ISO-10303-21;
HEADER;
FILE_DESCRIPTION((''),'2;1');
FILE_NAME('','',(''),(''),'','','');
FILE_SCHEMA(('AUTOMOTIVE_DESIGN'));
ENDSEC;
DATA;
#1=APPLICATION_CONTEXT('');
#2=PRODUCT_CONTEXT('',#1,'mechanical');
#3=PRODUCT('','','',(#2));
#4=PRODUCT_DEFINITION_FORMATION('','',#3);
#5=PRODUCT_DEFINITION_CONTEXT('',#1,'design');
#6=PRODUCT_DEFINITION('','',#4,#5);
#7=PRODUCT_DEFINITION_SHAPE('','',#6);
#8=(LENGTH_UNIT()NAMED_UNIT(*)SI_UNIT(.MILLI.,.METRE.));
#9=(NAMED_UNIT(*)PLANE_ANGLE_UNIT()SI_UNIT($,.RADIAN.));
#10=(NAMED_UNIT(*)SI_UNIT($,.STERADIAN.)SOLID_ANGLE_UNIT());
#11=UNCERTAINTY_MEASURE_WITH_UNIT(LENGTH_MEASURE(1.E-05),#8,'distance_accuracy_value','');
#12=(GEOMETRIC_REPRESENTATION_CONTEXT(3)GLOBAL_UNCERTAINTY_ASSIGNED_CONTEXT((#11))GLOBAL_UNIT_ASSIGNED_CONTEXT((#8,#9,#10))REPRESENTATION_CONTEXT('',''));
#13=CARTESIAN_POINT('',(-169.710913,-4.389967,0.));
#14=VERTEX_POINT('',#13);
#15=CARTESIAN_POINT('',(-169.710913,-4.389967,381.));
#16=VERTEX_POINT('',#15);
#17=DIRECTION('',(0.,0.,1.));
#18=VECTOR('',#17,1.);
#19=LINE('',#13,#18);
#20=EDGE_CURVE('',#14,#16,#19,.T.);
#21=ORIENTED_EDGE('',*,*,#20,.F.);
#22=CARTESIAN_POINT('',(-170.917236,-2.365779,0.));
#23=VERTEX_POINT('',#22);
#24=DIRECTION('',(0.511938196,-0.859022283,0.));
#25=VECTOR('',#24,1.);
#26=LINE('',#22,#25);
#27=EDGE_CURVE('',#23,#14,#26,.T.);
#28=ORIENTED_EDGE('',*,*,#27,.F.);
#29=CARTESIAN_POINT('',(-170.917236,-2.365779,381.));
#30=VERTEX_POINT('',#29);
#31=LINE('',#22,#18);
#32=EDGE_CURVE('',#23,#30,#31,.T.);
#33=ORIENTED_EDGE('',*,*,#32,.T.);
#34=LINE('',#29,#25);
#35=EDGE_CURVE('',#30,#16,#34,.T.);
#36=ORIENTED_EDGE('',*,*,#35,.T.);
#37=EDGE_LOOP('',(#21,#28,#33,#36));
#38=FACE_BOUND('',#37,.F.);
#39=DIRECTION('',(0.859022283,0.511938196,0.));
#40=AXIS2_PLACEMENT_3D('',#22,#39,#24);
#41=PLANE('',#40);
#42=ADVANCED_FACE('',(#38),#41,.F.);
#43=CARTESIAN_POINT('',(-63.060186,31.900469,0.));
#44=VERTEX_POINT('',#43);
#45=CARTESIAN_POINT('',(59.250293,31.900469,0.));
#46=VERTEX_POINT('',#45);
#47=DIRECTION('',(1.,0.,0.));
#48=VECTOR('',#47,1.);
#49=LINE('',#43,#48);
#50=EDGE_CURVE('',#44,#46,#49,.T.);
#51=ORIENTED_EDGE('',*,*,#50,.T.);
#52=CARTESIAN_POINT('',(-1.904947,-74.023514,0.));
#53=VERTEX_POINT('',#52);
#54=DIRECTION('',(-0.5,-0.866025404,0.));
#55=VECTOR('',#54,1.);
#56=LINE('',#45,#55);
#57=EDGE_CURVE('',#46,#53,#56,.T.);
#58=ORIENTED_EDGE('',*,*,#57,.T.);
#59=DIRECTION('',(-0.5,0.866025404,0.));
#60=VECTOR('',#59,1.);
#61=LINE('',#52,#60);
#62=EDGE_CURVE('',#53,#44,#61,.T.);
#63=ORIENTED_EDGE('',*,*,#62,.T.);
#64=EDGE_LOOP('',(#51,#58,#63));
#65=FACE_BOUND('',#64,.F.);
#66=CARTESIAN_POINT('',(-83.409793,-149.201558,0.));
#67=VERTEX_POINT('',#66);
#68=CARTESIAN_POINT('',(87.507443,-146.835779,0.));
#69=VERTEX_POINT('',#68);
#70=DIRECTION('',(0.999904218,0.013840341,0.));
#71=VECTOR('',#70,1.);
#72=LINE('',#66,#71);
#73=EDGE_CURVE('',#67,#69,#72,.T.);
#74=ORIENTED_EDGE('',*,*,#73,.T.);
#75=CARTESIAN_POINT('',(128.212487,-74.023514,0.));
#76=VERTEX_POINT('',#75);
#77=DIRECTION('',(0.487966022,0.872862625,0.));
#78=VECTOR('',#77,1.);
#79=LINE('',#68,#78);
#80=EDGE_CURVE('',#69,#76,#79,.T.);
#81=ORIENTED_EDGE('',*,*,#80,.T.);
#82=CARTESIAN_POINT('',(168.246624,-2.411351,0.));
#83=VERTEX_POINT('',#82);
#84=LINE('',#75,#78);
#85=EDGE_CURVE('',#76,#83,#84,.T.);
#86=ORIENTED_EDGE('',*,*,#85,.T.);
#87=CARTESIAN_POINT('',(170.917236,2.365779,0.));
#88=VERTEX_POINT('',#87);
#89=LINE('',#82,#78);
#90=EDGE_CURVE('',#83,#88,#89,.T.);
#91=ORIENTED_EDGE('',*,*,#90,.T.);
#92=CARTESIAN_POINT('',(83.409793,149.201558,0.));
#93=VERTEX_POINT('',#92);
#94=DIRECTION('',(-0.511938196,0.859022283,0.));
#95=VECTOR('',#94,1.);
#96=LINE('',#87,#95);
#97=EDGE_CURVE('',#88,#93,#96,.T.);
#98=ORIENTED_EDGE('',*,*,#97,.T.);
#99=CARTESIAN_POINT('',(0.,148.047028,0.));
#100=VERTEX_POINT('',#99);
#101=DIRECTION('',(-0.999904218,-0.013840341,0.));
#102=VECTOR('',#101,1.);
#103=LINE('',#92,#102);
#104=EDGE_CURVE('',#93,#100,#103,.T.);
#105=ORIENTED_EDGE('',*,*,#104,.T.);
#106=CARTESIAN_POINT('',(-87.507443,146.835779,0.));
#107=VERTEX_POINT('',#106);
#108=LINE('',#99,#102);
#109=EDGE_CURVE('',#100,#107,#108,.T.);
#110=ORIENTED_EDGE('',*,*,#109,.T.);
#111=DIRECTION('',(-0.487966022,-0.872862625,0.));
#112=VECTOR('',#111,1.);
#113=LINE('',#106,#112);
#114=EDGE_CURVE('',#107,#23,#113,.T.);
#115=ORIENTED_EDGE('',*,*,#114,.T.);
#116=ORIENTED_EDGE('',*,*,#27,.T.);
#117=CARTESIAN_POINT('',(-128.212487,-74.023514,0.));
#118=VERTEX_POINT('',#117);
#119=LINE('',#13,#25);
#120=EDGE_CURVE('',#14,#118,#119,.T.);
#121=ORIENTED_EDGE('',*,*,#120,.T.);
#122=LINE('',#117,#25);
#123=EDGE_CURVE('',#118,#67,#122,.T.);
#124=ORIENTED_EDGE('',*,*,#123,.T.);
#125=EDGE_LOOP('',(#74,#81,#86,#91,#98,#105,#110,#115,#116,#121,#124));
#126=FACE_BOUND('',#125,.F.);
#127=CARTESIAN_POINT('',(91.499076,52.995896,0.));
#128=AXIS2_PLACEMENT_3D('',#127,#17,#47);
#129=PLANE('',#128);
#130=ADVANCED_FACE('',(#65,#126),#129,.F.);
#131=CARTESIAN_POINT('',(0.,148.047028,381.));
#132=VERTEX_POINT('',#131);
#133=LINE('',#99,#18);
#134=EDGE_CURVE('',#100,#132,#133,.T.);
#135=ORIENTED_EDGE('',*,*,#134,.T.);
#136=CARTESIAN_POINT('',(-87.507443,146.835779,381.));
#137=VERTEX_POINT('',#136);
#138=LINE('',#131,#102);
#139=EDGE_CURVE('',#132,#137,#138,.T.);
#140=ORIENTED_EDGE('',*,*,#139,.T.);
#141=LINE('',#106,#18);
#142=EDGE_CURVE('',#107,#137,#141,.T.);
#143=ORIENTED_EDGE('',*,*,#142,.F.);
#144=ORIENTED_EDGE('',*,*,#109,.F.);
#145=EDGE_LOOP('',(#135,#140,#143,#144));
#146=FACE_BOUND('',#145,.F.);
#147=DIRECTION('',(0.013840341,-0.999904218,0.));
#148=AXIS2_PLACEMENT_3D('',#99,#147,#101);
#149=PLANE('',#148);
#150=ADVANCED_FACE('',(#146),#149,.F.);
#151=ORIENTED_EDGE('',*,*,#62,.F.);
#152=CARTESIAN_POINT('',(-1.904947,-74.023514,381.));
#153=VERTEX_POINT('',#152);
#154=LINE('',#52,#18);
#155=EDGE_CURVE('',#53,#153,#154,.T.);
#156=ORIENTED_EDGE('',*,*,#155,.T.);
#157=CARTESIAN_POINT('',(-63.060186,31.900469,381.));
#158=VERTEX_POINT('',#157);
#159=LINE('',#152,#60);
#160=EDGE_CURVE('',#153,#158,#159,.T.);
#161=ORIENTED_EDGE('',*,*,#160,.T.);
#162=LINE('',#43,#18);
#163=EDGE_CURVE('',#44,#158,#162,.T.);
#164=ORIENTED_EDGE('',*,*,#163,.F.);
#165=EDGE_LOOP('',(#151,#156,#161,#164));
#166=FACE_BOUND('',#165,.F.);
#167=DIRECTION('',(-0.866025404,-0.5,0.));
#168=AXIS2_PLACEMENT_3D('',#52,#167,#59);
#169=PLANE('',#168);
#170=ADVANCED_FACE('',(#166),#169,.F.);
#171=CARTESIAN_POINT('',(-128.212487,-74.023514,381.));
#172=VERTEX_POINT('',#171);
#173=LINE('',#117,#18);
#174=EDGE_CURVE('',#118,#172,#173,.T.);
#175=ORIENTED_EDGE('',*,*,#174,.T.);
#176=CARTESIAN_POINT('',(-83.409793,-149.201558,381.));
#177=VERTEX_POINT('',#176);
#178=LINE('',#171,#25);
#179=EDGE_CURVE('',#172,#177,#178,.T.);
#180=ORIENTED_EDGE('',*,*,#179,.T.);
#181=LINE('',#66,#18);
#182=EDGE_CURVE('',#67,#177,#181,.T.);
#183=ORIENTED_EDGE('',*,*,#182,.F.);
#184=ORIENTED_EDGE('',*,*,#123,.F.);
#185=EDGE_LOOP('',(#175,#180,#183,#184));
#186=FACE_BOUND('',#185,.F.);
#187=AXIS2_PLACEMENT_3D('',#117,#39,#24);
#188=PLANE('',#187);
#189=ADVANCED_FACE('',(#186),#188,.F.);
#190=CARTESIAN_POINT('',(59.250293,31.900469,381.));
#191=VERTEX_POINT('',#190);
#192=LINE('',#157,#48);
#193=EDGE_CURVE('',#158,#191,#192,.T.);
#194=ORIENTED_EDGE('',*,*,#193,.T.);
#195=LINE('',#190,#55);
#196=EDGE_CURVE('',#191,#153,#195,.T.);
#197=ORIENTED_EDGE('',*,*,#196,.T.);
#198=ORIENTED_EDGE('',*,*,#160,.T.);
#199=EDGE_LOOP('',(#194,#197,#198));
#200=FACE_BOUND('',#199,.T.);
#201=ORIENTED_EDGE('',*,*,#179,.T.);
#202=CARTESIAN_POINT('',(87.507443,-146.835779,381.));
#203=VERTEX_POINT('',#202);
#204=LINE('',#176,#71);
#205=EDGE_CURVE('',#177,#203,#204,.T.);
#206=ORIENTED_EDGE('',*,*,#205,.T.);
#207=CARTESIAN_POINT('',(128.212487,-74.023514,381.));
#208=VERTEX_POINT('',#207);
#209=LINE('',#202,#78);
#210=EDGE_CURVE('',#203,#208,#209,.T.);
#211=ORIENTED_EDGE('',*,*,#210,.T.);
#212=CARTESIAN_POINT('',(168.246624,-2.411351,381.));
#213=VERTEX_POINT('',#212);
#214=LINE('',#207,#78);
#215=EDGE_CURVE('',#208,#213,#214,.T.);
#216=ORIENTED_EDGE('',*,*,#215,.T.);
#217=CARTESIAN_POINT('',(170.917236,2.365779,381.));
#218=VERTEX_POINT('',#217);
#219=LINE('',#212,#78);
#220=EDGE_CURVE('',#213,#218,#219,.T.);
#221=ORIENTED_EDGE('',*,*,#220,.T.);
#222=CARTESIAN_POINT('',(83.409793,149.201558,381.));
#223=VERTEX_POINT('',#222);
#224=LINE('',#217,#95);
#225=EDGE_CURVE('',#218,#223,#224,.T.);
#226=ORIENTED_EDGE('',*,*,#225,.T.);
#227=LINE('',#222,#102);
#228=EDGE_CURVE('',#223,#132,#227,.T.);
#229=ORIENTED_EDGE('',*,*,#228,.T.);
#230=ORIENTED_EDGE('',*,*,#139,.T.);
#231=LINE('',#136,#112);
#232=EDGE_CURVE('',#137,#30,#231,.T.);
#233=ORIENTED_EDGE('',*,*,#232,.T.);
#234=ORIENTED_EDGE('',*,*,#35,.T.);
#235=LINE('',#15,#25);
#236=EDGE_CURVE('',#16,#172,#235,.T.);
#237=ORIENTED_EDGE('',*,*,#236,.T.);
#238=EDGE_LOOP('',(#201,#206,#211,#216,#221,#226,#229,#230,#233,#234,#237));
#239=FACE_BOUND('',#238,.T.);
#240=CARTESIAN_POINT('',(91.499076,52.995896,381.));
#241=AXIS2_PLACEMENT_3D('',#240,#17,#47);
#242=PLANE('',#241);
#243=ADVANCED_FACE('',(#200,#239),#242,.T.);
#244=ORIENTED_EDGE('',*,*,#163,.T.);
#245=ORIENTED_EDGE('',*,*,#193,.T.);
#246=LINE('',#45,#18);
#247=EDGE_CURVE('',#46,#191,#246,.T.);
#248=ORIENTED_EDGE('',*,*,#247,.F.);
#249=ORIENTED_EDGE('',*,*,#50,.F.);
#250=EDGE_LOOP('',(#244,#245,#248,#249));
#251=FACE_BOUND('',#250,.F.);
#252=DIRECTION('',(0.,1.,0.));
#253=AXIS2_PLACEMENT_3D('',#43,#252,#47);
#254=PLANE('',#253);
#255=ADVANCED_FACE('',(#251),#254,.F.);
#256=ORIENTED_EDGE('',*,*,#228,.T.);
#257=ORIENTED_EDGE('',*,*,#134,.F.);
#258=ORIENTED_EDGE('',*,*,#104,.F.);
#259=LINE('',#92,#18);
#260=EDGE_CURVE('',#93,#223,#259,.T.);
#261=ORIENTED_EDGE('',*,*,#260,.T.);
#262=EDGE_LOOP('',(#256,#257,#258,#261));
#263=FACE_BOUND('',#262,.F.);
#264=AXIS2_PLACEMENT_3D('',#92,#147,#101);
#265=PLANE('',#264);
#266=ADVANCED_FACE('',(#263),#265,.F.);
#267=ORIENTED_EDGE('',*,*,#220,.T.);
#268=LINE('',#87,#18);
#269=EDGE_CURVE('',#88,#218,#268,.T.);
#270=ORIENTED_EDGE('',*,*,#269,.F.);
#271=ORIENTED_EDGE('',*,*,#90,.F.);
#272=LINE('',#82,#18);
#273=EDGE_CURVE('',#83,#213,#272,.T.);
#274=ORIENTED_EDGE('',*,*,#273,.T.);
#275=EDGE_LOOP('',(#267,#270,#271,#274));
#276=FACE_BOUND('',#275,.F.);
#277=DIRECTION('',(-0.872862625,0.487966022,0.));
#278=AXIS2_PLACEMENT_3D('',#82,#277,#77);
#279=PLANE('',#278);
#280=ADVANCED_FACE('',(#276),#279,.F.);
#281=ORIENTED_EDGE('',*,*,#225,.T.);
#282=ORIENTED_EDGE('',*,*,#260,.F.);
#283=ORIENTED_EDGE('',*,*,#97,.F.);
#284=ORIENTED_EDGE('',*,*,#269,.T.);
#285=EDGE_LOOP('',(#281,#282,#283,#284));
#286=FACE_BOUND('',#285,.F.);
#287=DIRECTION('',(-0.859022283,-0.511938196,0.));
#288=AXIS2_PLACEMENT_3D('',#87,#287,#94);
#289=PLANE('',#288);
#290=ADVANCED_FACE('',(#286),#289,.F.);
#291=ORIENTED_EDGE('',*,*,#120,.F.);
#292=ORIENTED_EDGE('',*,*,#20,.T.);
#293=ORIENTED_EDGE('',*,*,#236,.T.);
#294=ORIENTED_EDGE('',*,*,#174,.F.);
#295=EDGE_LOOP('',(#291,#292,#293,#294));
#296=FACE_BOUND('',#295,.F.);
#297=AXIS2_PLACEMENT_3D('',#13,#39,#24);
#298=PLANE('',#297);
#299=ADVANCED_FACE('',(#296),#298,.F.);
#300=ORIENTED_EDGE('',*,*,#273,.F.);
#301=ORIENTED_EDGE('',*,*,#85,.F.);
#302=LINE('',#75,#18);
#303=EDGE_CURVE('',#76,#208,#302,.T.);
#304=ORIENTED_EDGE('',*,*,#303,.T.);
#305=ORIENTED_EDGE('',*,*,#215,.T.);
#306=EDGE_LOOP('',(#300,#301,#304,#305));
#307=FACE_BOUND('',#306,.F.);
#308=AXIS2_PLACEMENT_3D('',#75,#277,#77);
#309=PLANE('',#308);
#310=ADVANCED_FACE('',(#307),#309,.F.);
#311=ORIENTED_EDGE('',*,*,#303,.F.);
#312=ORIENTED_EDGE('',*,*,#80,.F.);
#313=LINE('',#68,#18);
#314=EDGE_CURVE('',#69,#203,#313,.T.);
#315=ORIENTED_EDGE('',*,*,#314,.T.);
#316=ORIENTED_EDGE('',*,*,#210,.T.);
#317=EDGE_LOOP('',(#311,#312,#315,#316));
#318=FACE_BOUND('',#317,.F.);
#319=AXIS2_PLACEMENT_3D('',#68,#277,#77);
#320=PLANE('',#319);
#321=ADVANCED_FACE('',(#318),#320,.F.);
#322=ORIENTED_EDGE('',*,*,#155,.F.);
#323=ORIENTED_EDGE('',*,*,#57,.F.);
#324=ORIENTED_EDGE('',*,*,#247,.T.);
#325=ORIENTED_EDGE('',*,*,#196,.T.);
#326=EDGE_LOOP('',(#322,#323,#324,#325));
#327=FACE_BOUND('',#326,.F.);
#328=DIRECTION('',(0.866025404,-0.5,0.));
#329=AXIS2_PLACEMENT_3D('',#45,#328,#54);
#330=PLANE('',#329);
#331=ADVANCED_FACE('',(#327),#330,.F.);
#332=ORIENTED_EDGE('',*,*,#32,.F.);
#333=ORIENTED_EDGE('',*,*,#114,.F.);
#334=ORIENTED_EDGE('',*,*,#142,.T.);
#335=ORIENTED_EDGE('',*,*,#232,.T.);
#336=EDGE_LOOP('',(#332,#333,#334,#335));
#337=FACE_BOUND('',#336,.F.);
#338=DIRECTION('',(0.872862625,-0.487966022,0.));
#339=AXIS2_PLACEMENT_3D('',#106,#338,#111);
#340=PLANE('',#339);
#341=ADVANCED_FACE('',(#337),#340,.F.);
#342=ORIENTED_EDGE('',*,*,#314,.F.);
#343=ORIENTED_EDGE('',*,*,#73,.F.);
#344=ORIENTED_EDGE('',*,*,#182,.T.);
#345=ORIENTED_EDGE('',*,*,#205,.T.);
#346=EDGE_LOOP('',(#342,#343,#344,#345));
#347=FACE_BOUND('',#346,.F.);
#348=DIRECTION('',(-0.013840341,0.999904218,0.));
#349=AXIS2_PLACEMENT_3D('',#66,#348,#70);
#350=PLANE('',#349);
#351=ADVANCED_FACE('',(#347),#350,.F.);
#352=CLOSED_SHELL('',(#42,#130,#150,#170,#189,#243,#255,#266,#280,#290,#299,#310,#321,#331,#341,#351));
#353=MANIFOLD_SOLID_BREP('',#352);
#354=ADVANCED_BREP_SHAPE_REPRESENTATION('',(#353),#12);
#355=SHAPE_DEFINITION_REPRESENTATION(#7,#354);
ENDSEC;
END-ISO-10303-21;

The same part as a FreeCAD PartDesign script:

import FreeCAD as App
import Part
import Sketcher
Q = App.Units.Quantity

doc = App.newDocument("Part")
params = doc.addObject("Spreadsheet::Sheet", "Params")
for row, (alias, value) in enumerate([
    ("pad1_length", "15 in"),
], start=1):
    params.set(f"A{row}", alias)
    params.set(f"B{row}", "=" + value)
    params.setAlias(f"B{row}", alias)

body = doc.addObject("PartDesign::Body", "Body")

# Sketch on XY plane
sketch1 = doc.addObject("Sketcher::SketchObject", "Sketch")
body.addObject(sketch1)
sketch1.AttachmentSupport = (doc.XY_Plane, [""])
sketch1.MapMode = "FlatFace"
sketch1.addGeometry([
    Part.LineSegment(App.Vector(170.9, 2.4, 0), App.Vector(83.4, 149.2, 0)),  # 0
    Part.LineSegment(App.Vector(83.4, 149.2, 0), App.Vector(0, 148, 0)),  # 1
    Part.LineSegment(App.Vector(0, 148, 0), App.Vector(-87.5, 146.8, 0)),  # 2
    Part.LineSegment(App.Vector(-87.5, 146.8, 0), App.Vector(-170.9, -2.4, 0)),  # 3
    Part.LineSegment(App.Vector(-170.9, -2.4, 0), App.Vector(-169.7, -4.4, 0)),  # 4
    Part.LineSegment(App.Vector(-169.7, -4.4, 0), App.Vector(-128.2, -74, 0)),  # 5
    Part.LineSegment(App.Vector(-128.2, -74, 0), App.Vector(-83.4, -149.2, 0)),  # 6
    Part.LineSegment(App.Vector(-83.4, -149.2, 0), App.Vector(87.5, -146.8, 0)),  # 7
    Part.LineSegment(App.Vector(87.5, -146.8, 0), App.Vector(128.2, -74, 0)),  # 8
    Part.LineSegment(App.Vector(128.2, -74, 0), App.Vector(168.2, -2.4, 0)),  # 9
    Part.LineSegment(App.Vector(168.2, -2.4, 0), App.Vector(170.9, 2.4, 0)),  # 10
    Part.LineSegment(App.Vector(-63.1, 31.9, 0), App.Vector(59.3, 31.9, 0)),  # 11
    Part.LineSegment(App.Vector(59.3, 31.9, 0), App.Vector(-1.9, -74, 0)),  # 12
    Part.LineSegment(App.Vector(-1.9, -74, 0), App.Vector(-63.1, 31.9, 0)),  # 13
], False)
sketch1.addConstraint([
    Sketcher.Constraint("Coincident", 0, 2, 1, 1),
    Sketcher.Constraint("Coincident", 1, 2, 2, 1),
    Sketcher.Constraint("Coincident", 2, 2, 3, 1),
    Sketcher.Constraint("Coincident", 3, 2, 4, 1),
    Sketcher.Constraint("Coincident", 4, 2, 5, 1),
    Sketcher.Constraint("Coincident", 5, 2, 6, 1),
    Sketcher.Constraint("Coincident", 6, 2, 7, 1),
    Sketcher.Constraint("Coincident", 7, 2, 8, 1),
    Sketcher.Constraint("Coincident", 8, 2, 9, 1),
    Sketcher.Constraint("Coincident", 9, 2, 10, 1),
    Sketcher.Constraint("Coincident", 10, 2, 0, 1),
    Sketcher.Constraint("Coincident", 11, 2, 12, 1),
    Sketcher.Constraint("Coincident", 12, 2, 13, 1),
    Sketcher.Constraint("Coincident", 13, 2, 11, 1),
    Sketcher.Constraint("Horizontal", 11),
    Sketcher.Constraint("Symmetric", 0, 2, 6, 2, -1, 1),
    Sketcher.Constraint("Symmetric", 2, 2, 7, 2, -1, 1),
    Sketcher.Constraint("Symmetric", 3, 2, 10, 2, -1, 1),
    Sketcher.Constraint("Symmetric", 5, 2, 8, 2, -2),
    Sketcher.Constraint("PointOnObject", 1, 2, -2),
    Sketcher.Constraint("Parallel", 1, 2),
    Sketcher.Constraint("Parallel", 0, 4),
    Sketcher.Constraint("Parallel", 4, 5),
    Sketcher.Constraint("Parallel", 3, 8),
    Sketcher.Constraint("Parallel", 8, 9),
    Sketcher.Constraint("Horizontal", 8, 2, 12, 2),
    Sketcher.Constraint("Equal", 0, 3),
    Sketcher.Constraint("Equal", 2, 6),
    Sketcher.Constraint("Equal", 3, 7),
    Sketcher.Constraint("Equal", 1, 8),
    Sketcher.Constraint("Equal", 12, 13),
    Sketcher.Constraint("Angle", 12, Q("-120 deg")),
    Sketcher.Constraint("DistanceX", 3, 2, 7, 2, Q("10.1742 in")),
    Sketcher.Constraint("DistanceX", 11, 1, 11, 2, Q("122.31048 mm")),
    Sketcher.Constraint("DistanceY", 7, 2, 3, 2, Q("144.469999 mm")),
    Sketcher.Constraint("DistanceX", 11, 2, 0, 2, Q("24.1595 mm")),
    Sketcher.Constraint("Distance", 9, Q("82.042879 mm")),
    Sketcher.Constraint("DistanceX", 4, 2, 2, 2, Q("82.203469 mm")),
])
pad1 = doc.addObject("PartDesign::Pad", "Pad")
body.addObject(pad1)
pad1.Profile = sketch1
pad1.setExpression("Length", "Params.pad1_length")

doc.recompute()
